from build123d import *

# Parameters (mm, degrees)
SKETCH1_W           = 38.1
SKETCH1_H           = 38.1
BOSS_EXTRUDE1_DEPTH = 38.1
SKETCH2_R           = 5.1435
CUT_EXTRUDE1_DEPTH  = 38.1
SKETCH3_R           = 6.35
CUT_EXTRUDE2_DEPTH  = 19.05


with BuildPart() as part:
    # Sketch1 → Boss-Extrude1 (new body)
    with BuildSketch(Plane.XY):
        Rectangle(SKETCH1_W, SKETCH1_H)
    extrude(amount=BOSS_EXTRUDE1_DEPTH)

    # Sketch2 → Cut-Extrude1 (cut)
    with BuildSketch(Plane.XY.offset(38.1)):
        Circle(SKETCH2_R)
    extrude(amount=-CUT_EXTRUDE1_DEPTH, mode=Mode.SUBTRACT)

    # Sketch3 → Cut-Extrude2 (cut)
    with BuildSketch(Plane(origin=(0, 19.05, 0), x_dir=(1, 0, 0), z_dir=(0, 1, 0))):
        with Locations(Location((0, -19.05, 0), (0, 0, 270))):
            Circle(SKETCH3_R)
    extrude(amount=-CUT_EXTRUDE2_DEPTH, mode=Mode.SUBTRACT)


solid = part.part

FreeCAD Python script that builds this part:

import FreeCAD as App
import Part
import Sketcher

V = App.Vector
Q = App.Units.Quantity


def add_polygon(sketch, points):
    """Adds a closed chain of lines whose ends are joined by coincident constraints."""
    first, n = sketch.GeometryCount, len(points)
    for a, b in zip(points, points[1:] + points[:1]):
        sketch.addGeometry(Part.LineSegment(App.Vector(*a, 0), App.Vector(*b, 0)), False)
    for i in range(n):
        sketch.addConstraint(Sketcher.Constraint("Coincident", first + i, 2, first + (i + 1) % n, 1))

doc = App.newDocument("Part")
body = doc.addObject("PartDesign::Body", "Body")

# Sketch on XY plane
sketch1 = doc.addObject("Sketcher::SketchObject", "Sketch")
body.addObject(sketch1)
sketch1.AttachmentSupport = (doc.XY_Plane, [""])
sketch1.MapMode = "FlatFace"
add_polygon(sketch1, [(-19, 19), (-19, -19), (19, -19), (19, 19)])  # lines 0-3
sketch1.addConstraint(Sketcher.Constraint("Vertical", 0))
sketch1.addConstraint(Sketcher.Constraint("Horizontal", 1))
sketch1.addConstraint(Sketcher.Constraint("Vertical", 2))
sketch1.addConstraint(Sketcher.Constraint("Horizontal", 3))
sketch1.addConstraint(Sketcher.Constraint("Symmetric", 0, 2, 2, 2, -1, 1))
sketch1.addConstraint(Sketcher.Constraint("Equal", 3, 0))
sketch1.addConstraint(Sketcher.Constraint("DistanceX", 1, 1, 1, 2, Q("1.5 in")))
pad1 = doc.addObject("PartDesign::Pad", "Pad")
body.addObject(pad1)
pad1.Profile = sketch1
pad1.Length = Q("1.5 in")

# Sketch on XY plane
sketch2 = doc.addObject("Sketcher::SketchObject", "Sketch001")
body.addObject(sketch2)
sketch2.AttachmentSupport = (doc.XY_Plane, [""])
sketch2.MapMode = "FlatFace"
sketch2.AttachmentOffset = App.Placement(V(0, 0, 1.5 * 25.4), App.Rotation())
sketch2.addGeometry(Part.Circle(V(0, 0, 0), V(0, 0, 1), 5), False)
sketch2.addConstraint(Sketcher.Constraint("Coincident", 0, 3, -1, 1))
sketch2.addConstraint(Sketcher.Constraint("Diameter", 0, Q("0.405 in")))
pocket1 = doc.addObject("PartDesign::Pocket", "Pocket")
body.addObject(pocket1)
pocket1.Profile = sketch2
pocket1.Length = Q("1.5 in")

# Sketch on XZ plane
sketch3 = doc.addObject("Sketcher::SketchObject", "Sketch002")
body.addObject(sketch3)
sketch3.AttachmentSupport = (doc.XZ_Plane, [""])
sketch3.MapMode = "FlatFace"
sketch3.AttachmentOffset = App.Placement(V(0, 0, -0.75 * 25.4), App.Rotation())
sketch3.addGeometry(Part.Circle(V(0, 19, 0), V(0, 0, 1), 6), False)
sketch3.addConstraint(Sketcher.Constraint("PointOnObject", 0, 3, -2))
sketch3.addConstraint(Sketcher.Constraint("Diameter", 0, Q("0.5 in")))
sketch3.addConstraint(Sketcher.Constraint("DistanceY", -1, 1, 0, 3, Q("0.75 in")))
pocket2 = doc.addObject("PartDesign::Pocket", "Pocket001")
body.addObject(pocket2)
pocket2.Profile = sketch3
pocket2.Length = Q("0.75 in")
pocket2.Reversed = True

doc.recompute()
